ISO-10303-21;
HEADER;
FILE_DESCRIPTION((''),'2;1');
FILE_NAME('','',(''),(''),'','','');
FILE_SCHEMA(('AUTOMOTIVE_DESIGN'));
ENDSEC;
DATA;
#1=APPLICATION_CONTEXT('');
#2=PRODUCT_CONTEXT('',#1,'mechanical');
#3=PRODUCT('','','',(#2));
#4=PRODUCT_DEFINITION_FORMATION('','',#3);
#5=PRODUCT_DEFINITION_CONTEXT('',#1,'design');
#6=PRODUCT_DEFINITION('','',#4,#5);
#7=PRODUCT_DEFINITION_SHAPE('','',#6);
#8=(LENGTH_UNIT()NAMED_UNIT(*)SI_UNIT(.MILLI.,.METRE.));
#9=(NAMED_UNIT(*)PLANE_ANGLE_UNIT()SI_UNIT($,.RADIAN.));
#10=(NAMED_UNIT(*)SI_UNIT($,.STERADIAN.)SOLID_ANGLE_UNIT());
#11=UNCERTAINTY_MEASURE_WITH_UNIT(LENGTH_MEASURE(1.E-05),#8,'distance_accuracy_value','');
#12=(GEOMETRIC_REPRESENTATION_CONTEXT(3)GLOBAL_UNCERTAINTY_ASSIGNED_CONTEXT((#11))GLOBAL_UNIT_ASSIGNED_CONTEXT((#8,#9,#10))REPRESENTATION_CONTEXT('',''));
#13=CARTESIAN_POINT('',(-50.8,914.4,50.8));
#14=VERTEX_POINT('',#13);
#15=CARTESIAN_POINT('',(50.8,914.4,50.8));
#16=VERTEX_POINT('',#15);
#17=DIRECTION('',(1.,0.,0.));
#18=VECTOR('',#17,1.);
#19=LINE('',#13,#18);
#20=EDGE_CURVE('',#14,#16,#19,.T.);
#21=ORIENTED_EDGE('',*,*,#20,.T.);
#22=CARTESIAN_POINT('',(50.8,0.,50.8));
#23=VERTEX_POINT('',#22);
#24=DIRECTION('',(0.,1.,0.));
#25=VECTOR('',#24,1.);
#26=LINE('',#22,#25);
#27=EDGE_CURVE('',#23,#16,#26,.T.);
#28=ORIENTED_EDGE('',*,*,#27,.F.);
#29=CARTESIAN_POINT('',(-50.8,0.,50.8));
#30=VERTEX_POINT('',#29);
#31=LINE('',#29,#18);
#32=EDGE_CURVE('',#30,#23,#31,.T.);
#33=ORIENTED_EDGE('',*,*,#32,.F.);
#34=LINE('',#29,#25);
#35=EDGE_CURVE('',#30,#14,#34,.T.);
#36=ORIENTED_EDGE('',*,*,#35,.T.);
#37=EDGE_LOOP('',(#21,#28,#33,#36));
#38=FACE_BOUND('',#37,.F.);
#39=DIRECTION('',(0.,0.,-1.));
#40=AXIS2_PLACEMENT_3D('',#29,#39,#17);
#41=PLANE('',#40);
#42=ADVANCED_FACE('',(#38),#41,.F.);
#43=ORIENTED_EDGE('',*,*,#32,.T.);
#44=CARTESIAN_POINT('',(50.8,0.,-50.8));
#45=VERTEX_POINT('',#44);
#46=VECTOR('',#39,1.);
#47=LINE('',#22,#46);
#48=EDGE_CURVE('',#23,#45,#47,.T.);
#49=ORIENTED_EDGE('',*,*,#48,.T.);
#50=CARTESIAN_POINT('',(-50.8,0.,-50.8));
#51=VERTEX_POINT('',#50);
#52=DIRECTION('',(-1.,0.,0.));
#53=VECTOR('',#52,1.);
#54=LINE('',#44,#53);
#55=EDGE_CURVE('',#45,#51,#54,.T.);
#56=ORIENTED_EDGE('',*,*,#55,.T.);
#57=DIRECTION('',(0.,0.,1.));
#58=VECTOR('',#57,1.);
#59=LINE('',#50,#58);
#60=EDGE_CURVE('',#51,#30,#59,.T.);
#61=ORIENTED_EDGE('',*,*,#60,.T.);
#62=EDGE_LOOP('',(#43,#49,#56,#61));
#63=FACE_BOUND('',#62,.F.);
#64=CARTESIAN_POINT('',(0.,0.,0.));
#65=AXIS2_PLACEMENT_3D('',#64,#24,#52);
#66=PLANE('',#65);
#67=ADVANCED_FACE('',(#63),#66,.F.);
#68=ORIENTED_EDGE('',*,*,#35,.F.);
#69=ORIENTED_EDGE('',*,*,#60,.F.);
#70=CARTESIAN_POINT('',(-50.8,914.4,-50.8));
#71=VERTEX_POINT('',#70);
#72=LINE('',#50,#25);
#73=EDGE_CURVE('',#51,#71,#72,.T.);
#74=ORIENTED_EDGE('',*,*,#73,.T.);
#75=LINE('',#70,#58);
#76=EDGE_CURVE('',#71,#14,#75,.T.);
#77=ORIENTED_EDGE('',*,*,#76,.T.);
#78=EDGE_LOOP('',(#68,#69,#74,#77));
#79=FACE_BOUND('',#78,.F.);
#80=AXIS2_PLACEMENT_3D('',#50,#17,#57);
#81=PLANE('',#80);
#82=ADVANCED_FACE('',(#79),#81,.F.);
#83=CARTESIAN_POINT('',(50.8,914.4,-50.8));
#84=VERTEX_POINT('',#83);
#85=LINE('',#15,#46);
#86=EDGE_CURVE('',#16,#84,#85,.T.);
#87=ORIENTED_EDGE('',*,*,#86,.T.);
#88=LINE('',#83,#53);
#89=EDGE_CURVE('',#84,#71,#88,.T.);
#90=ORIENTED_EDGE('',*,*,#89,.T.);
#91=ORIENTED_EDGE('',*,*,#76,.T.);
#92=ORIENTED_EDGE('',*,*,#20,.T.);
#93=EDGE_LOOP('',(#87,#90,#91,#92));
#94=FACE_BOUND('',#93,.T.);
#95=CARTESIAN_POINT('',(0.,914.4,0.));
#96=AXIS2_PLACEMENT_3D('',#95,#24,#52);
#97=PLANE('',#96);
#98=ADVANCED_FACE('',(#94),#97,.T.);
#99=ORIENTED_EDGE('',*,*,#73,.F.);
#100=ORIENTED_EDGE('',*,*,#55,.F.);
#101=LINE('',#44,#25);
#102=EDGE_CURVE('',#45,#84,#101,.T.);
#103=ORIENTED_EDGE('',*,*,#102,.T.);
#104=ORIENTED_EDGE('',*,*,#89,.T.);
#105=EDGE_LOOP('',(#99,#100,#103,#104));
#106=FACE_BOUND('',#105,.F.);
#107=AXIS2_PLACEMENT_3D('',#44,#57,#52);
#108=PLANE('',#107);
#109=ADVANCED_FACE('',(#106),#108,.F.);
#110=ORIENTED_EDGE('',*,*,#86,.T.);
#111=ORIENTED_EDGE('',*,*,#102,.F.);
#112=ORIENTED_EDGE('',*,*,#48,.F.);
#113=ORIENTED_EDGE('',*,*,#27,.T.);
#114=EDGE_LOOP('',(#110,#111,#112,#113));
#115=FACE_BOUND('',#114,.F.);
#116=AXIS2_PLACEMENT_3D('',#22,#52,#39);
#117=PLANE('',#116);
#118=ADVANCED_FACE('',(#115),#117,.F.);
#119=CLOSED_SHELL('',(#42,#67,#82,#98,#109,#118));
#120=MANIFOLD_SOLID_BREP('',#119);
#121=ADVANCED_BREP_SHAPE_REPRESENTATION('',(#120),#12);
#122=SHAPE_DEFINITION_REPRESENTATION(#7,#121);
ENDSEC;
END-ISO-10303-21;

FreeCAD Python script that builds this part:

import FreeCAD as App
import Part
import Sketcher

V = App.Vector
Q = App.Units.Quantity

doc = App.newDocument("Part")
body = doc.addObject("PartDesign::Body", "Body")

# Sketch on XZ plane
sketch1 = body.newObject("Sketcher::SketchObject", "Sketch")
sketch1.AttachmentSupport = (doc.getObject("XZ_Plane"), [""])
sketch1.MapMode = "FlatFace"
sketch1.addGeometry([
    Part.LineSegment(V(-51, 51, 0), V(51, 51, 0)),
    Part.LineSegment(V(51, 51, 0), V(51, -51, 0)),
    Part.LineSegment(V(51, -51, 0), V(-51, -51, 0)),
    Part.LineSegment(V(-51, -51, 0), V(-51, 51, 0)),
], False)
sketch1.addConstraint([
    Sketcher.Constraint("Coincident", 0, 2, 1, 1),
    Sketcher.Constraint("Coincident", 1, 2, 2, 1),
    Sketcher.Constraint("Coincident", 2, 2, 3, 1),
    Sketcher.Constraint("Coincident", 3, 2, 0, 1),
    Sketcher.Constraint("Horizontal", 0),
    Sketcher.Constraint("Vertical", 1),
    Sketcher.Constraint("Horizontal", 2),
    Sketcher.Constraint("Vertical", 3),
    Sketcher.Constraint("Symmetric", 0, 2, 2, 2, -1, 1),
    Sketcher.Constraint("Equal", 2, 1),
    Sketcher.Constraint("DistanceX", 0, 1, 0, 2, Q("4 in")),
])
pad1 = body.newObject("PartDesign::Pad", "Pad")
pad1.Profile = sketch1
pad1.Length = Q("36 in")
pad1.Reversed = True

doc.recompute()
